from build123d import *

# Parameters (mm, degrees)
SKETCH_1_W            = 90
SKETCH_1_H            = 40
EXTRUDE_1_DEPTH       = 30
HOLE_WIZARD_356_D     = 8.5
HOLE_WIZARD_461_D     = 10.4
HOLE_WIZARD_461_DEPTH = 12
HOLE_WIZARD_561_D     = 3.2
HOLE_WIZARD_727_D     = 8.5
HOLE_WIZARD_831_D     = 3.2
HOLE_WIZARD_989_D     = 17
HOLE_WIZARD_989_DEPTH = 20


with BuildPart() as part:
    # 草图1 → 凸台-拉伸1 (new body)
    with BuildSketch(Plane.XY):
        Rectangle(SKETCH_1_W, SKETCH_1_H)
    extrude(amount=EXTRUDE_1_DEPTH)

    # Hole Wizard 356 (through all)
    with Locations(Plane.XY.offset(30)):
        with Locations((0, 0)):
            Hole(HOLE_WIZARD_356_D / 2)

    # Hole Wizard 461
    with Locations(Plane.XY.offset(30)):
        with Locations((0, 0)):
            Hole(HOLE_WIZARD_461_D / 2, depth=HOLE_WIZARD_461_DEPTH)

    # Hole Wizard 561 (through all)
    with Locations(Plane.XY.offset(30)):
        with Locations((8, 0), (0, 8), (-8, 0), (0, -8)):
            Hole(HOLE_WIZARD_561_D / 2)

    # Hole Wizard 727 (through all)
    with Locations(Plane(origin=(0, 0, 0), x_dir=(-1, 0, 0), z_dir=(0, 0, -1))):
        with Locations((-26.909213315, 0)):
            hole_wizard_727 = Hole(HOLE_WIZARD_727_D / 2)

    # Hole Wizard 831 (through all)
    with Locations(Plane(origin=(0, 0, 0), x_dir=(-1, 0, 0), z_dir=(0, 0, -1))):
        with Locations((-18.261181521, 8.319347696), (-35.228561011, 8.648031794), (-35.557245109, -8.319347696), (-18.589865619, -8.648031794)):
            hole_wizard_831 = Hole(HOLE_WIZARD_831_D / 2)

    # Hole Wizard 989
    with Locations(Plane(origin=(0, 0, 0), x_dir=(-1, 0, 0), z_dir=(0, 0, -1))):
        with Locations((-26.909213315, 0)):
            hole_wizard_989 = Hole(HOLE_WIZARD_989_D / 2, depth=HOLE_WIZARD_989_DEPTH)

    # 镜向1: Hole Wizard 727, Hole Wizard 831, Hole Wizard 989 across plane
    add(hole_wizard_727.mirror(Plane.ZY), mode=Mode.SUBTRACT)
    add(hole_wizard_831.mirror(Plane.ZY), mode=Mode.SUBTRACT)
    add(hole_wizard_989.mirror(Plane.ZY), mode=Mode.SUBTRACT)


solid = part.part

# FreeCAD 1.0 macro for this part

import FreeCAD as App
import Part
import Sketcher

V = App.Vector
Q = App.Units.Quantity


def add_polygon(sketch, points):
    """Adds a closed chain of lines whose ends are joined by coincident constraints."""
    first, n = sketch.GeometryCount, len(points)
    for a, b in zip(points, points[1:] + points[:1]):
        sketch.addGeometry(Part.LineSegment(App.Vector(*a, 0), App.Vector(*b, 0)), False)
    for i in range(n):
        sketch.addConstraint(Sketcher.Constraint("Coincident", first + i, 2, first + (i + 1) % n, 1))

doc = App.newDocument("Part")
body = doc.addObject("PartDesign::Body", "Body")

sketch1 = body.newObject("Sketcher::SketchObject", "Sketch")
sketch1.AttachmentSupport = (doc.getObject("XY_Plane"), [""])
sketch1.MapMode = "FlatFace"
add_polygon(sketch1, [(-45, 20), (-45, -20), (45, -20), (45, 20)])
sketch1.addConstraint(Sketcher.Constraint("Vertical", 0))
sketch1.addConstraint(Sketcher.Constraint("Horizontal", 1))
sketch1.addConstraint(Sketcher.Constraint("Vertical", 2))
sketch1.addConstraint(Sketcher.Constraint("Horizontal", 3))
sketch1.addConstraint(Sketcher.Constraint("Symmetric", 0, 2, 2, 2, -1, 1))
sketch1.addConstraint(Sketcher.Constraint("DistanceX", 1, 1, 1, 2, Q("90 mm")))
sketch1.addConstraint(Sketcher.Constraint("DistanceY", 0, 2, 0, 1, Q("40 mm")))
pad1 = body.newObject("PartDesign::Pad", "Pad")
pad1.Profile = sketch1
pad1.Length = 30

sketch2 = body.newObject("Sketcher::SketchObject", "Sketch001")
sketch2.AttachmentSupport = (doc.getObject("XY_Plane"), [""])
sketch2.MapMode = "FlatFace"
sketch2.AttachmentOffset = App.Placement(V(0, 0, 30), App.Rotation())
sketch2.addGeometry(Part.Circle(V(0, 0, 0), V(0, 0, 1), 4.2), False)
sketch2.addConstraint(Sketcher.Constraint("Coincident", 0, 3, -1, 1))
sketch2.addConstraint(Sketcher.Constraint("Diameter", 0, Q("8.5 mm")))
doc.recompute()
hole = body.newObject("PartDesign::Hole", "Hole")
hole.Profile = sketch2
hole.ThreadType = "None"
hole.Diameter = 8.5
hole.DepthType = "ThroughAll"

sketch3 = body.newObject("Sketcher::SketchObject", "Sketch002")
sketch3.AttachmentSupport = (doc.getObject("XY_Plane"), [""])
sketch3.MapMode = "FlatFace"
sketch3.AttachmentOffset = App.Placement(V(0, 0, 30), App.Rotation())
sketch3.addGeometry(Part.Circle(V(0, 0, 0), V(0, 0, 1), 5), False)
sketch3.addConstraint(Sketcher.Constraint("Coincident", 0, 3, -1, 1))
sketch3.addConstraint(Sketcher.Constraint("Diameter", 0, Q("10.4 mm")))
doc.recompute()
hole2 = body.newObject("PartDesign::Hole", "Hole001")
hole2.Profile = sketch3
hole2.ThreadType = "None"
hole2.Diameter = 10.4
hole2.DepthType = "Dimension"
hole2.Depth = 12
hole2.DrillPoint = "Flat"

sketch4 = body.newObject("Sketcher::SketchObject", "Sketch003")
sketch4.AttachmentSupport = (doc.getObject("XY_Plane"), [""])
sketch4.MapMode = "FlatFace"
sketch4.AttachmentOffset = App.Placement(V(0, 0, 30), App.Rotation())
sketch4.addGeometry(Part.Circle(V(8, 0, 0), V(0, 0, 1), 1.6), False)
sketch4.addGeometry(Part.Circle(V(0, 8, 0), V(0, 0, 1), 1.6), False)
sketch4.addGeometry(Part.Circle(V(-8, 0, 0), V(0, 0, 1), 1.6), False)
sketch4.addGeometry(Part.Circle(V(0, -8, 0), V(0, 0, 1), 1.6), False)
sketch4.addConstraint(Sketcher.Constraint("Equal", 0, 1))
sketch4.addConstraint(Sketcher.Constraint("Equal", 1, 2))
sketch4.addConstraint(Sketcher.Constraint("Equal", 2, 3))
sketch4.addConstraint(Sketcher.Constraint("Symmetric", 0, 3, 2, 3, -1, 1))
sketch4.addConstraint(Sketcher.Constraint("Symmetric", 1, 3, 3, 3, -1, 1))
sketch4.addConstraint(Sketcher.Constraint("PointOnObject", 0, 3, -1))
sketch4.addConstraint(Sketcher.Constraint("PointOnObject", 1, 3, -2))
sketch4.addConstraint(Sketcher.Constraint("Diameter", 0, Q("3.2 mm")))
sketch4.addConstraint(Sketcher.Constraint("DistanceX", -1, 1, 0, 3, Q("8 mm")))
sketch4.addConstraint(Sketcher.Constraint("DistanceY", -1, 1, 1, 3, Q("8 mm")))
doc.recompute()
hole3 = body.newObject("PartDesign::Hole", "Hole002")
hole3.Profile = sketch4
hole3.ThreadType = "None"
hole3.Diameter = 3.2
hole3.DepthType = "ThroughAll"

sketch5 = body.newObject("Sketcher::SketchObject", "Sketch004")
sketch5.AttachmentSupport = (doc.getObject("XY_Plane"), [""])
sketch5.MapMode = "FlatFace"
sketch5.addGeometry(Part.Circle(V(26.9, 0, 0), V(0, 0, 1), 4.2), False)
sketch5.addConstraint(Sketcher.Constraint("PointOnObject", 0, 3, -1))
sketch5.addConstraint(Sketcher.Constraint("Diameter", 0, Q("8.5 mm")))
sketch5.addConstraint(Sketcher.Constraint("DistanceX", -1, 1, 0, 3, Q("26.909213 mm")))
doc.recompute()
hole4 = body.newObject("PartDesign::Hole", "Hole003")
hole4.Profile = sketch5
hole4.ThreadType = "None"
hole4.Diameter = 8.5
hole4.DepthType = "ThroughAll"
hole4.Reversed = True

sketch6 = body.newObject("Sketcher::SketchObject", "Sketch005")
sketch6.AttachmentSupport = (doc.getObject("XY_Plane"), [""])
sketch6.MapMode = "FlatFace"
sketch6.addGeometry(Part.Circle(V(18.3, 8.3, 0), V(0, 0, 1), 1.6), False)
sketch6.addGeometry(Part.Circle(V(35.2, 8.6, 0), V(0, 0, 1), 1.6), False)
sketch6.addGeometry(Part.Circle(V(35.6, -8.3, 0), V(0, 0, 1), 1.6), False)
sketch6.addGeometry(Part.Circle(V(18.6, -8.6, 0), V(0, 0, 1), 1.6), False)
sketch6.addConstraint(Sketcher.Constraint("Equal", 0, 1))
sketch6.addConstraint(Sketcher.Constraint("Equal", 1, 2))
sketch6.addConstraint(Sketcher.Constraint("Equal", 2, 3))
sketch6.addConstraint(Sketcher.Constraint("Diameter", 0, Q("3.2 mm")))
sketch6.addConstraint(Sketcher.Constraint("DistanceX", -1, 1, 0, 3, Q("18.261182 mm")))
sketch6.addConstraint(Sketcher.Constraint("DistanceX", -1, 1, 1, 3, Q("35.228561 mm")))
sketch6.addConstraint(Sketcher.Constraint("DistanceY", -1, 1, 1, 3, Q("8.648032 mm")))
sketch6.addConstraint(Sketcher.Constraint("DistanceY", 3, 3, -1, 1, Q("8.648032 mm")))
sketch6.addConstraint(Sketcher.Constraint("DistanceY", 2, 3, 1, 3, Q("16.967379 mm")))
sketch6.addConstraint(Sketcher.Constraint("DistanceY", 3, 3, 0, 3, Q("16.967379 mm")))
sketch6.addConstraint(Sketcher.Constraint("DistanceX", 3, 3, 2, 3, Q("16.967379 mm")))
sketch6.addConstraint(Sketcher.Constraint("DistanceX", -1, 1, 2, 3, Q("35.557245 mm")))
doc.recompute()
hole5 = body.newObject("PartDesign::Hole", "Hole004")
hole5.Profile = sketch6
hole5.ThreadType = "None"
hole5.Diameter = 3.2
hole5.DepthType = "ThroughAll"
hole5.Reversed = True

sketch7 = body.newObject("Sketcher::SketchObject", "Sketch006")
sketch7.AttachmentSupport = (doc.getObject("XY_Plane"), [""])
sketch7.MapMode = "FlatFace"
sketch7.addGeometry(Part.Circle(V(27, 0, 0), V(0, 0, 1), 8), False)
sketch7.addConstraint(Sketcher.Constraint("PointOnObject", 0, 3, -1))
sketch7.addConstraint(Sketcher.Constraint("Diameter", 0, Q("17 mm")))
sketch7.addConstraint(Sketcher.Constraint("DistanceX", -1, 1, 0, 3, Q("26.909213 mm")))
doc.recompute()
hole6 = body.newObject("PartDesign::Hole", "Hole005")
hole6.Profile = sketch7
hole6.ThreadType = "None"
hole6.Diameter = 17
hole6.DepthType = "Dimension"
hole6.Depth = 20
hole6.DrillPoint = "Flat"
hole6.Reversed = True
doc.recompute()

mirrored = body.newObject("PartDesign::Mirrored", "Mirrored")
mirrored.Originals = [hole4, hole5, hole6]
mirrored.MirrorPlane = (doc.getObject("YZ_Plane"), [""])
body.Tip = mirrored

doc.recompute()
